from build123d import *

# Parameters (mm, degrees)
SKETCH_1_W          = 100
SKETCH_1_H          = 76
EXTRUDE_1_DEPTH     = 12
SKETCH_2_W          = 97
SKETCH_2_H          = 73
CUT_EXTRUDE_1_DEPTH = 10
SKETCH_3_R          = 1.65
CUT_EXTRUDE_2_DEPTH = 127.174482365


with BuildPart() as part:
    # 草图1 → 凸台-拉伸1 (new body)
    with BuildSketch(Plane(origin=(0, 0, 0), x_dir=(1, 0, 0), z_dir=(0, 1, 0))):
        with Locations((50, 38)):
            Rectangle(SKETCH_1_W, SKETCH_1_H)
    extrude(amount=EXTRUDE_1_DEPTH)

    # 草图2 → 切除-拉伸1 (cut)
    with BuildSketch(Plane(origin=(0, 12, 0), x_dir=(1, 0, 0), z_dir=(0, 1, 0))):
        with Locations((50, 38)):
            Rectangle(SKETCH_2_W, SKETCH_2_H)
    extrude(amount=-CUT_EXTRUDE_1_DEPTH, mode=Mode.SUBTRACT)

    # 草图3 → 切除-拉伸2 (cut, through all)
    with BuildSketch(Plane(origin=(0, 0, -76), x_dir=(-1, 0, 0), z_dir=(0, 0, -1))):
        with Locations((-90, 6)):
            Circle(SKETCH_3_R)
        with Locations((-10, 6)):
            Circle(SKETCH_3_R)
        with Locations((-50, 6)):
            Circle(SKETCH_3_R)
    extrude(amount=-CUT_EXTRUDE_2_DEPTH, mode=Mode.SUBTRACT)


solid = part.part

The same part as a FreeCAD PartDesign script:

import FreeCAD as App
import Part
import Sketcher
Q = App.Units.Quantity


def add_polygon(sketch, points):
    """Adds a closed chain of lines whose ends are joined by coincident constraints."""
    first, n = sketch.GeometryCount, len(points)
    for a, b in zip(points, points[1:] + points[:1]):
        sketch.addGeometry(Part.LineSegment(App.Vector(*a, 0), App.Vector(*b, 0)), False)
    for i in range(n):
        sketch.addConstraint(Sketcher.Constraint("Coincident", first + i, 2, first + (i + 1) % n, 1))

doc = App.newDocument("Part")
body = doc.addObject("PartDesign::Body", "Body")

sketch1 = body.newObject("Sketcher::SketchObject", "Sketch")
sketch1.AttachmentSupport = (doc.getObject("XZ_Plane"), [""])
sketch1.MapMode = "FlatFace"
add_polygon(sketch1, [(0, -76), (0, 0), (100, 0), (100, -76)])
sketch1.addConstraint([
    Sketcher.Constraint("Vertical", 0),
    Sketcher.Constraint("Horizontal", 1),
    Sketcher.Constraint("Vertical", 2),
    Sketcher.Constraint("Horizontal", 3),
    Sketcher.Constraint("Coincident", 0, 2, -1, 1),
    Sketcher.Constraint("DistanceX", 1, 1, 1, 2, Q("100 mm")),
    Sketcher.Constraint("DistanceY", 0, 1, 0, 2, Q("76 mm")),
])
pad1 = body.newObject("PartDesign::Pad", "Pad")
pad1.Profile = sketch1
pad1.Length = 12
pad1.Reversed = True

sketch2 = body.newObject("Sketcher::SketchObject", "Sketch001")
sketch2.AttachmentSupport = (doc.getObject("XZ_Plane"), [""])
sketch2.MapMode = "FlatFace"
sketch2.AttachmentOffset = App.Placement(App.Vector(0, 0, -12), App.Rotation())
add_polygon(sketch2, [(2, -74), (2, -2), (98, -2), (98, -74)])
sketch2.addConstraint([
    Sketcher.Constraint("Vertical", 0),
    Sketcher.Constraint("Horizontal", 1),
    Sketcher.Constraint("Vertical", 2),
    Sketcher.Constraint("Horizontal", 3),
    Sketcher.Constraint("DistanceX", 1, 1, 1, 2, Q("97 mm")),
    Sketcher.Constraint("DistanceY", 0, 1, 0, 2, Q("73 mm")),
    Sketcher.Constraint("DistanceX", -1, 1, 0, 2, Q("1.5 mm")),
    Sketcher.Constraint("DistanceY", 0, 2, -1, 1, Q("1.5 mm")),
])
pocket1 = body.newObject("PartDesign::Pocket", "Pocket")
pocket1.Profile = sketch2
pocket1.Length = 10
pocket1.Reversed = True

sketch3 = body.newObject("Sketcher::SketchObject", "Sketch002")
sketch3.AttachmentSupport = (doc.getObject("XY_Plane"), [""])
sketch3.MapMode = "FlatFace"
sketch3.AttachmentOffset = App.Placement(App.Vector(0, 0, -76), App.Rotation())
sketch3.addGeometry([
    Part.Circle(App.Vector(90, 6, 0), App.Vector(0, 0, 1), 1.6),
    Part.Circle(App.Vector(10, 6, 0), App.Vector(0, 0, 1), 1.6),
    Part.Circle(App.Vector(50, 6, 0), App.Vector(0, 0, 1), 1.6),
], False)
sketch3.addConstraint([
    Sketcher.Constraint("Equal", 0, 1),
    Sketcher.Constraint("Equal", 1, 2),
    Sketcher.Constraint("Horizontal", 0, 3, 1, 3),
    Sketcher.Constraint("Horizontal", 1, 3, 2, 3),
    Sketcher.Constraint("Diameter", 0, Q("3.3 mm")),
    Sketcher.Constraint("DistanceX", -1, 1, 0, 3, Q("90 mm")),
    Sketcher.Constraint("DistanceY", -1, 1, 0, 3, Q("6 mm")),
    Sketcher.Constraint("DistanceX", -1, 1, 1, 3, Q("10 mm")),
    Sketcher.Constraint("DistanceX", -1, 1, 2, 3, Q("50 mm")),
])
pocket2 = body.newObject("PartDesign::Pocket", "Pocket001")
pocket2.Profile = sketch3
pocket2.Type = "ThroughAll"
pocket2.Reversed = True

doc.recompute()
